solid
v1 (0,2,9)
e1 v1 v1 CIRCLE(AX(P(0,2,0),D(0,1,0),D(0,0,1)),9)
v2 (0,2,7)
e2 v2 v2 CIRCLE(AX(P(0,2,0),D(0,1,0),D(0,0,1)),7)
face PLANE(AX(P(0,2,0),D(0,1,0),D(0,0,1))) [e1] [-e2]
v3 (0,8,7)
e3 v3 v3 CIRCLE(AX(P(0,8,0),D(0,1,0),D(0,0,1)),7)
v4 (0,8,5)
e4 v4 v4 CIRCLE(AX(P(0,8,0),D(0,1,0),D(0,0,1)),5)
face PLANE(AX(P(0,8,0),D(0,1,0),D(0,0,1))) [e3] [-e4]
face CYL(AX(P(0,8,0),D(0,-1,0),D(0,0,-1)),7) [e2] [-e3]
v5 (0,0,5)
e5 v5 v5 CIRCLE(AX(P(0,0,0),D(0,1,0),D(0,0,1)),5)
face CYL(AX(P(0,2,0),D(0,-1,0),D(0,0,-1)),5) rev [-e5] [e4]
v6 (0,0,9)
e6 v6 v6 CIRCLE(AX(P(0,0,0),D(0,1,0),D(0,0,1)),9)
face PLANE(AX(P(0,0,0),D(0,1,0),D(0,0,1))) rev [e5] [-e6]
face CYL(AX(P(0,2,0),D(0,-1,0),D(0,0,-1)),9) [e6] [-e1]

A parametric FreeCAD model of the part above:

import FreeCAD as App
import Part
import Sketcher
from FreeCAD import Vector

doc = App.newDocument("Part")
body = doc.addObject("PartDesign::Body", "Body")

# Sketch on XZ plane
sketch1 = doc.addObject("Sketcher::SketchObject", "Sketch")
body.addObject(sketch1)
sketch1.AttachmentSupport = (doc.XZ_Plane, [""])
sketch1.MapMode = "FlatFace"
sketch1.addGeometry(Part.Circle(Vector(0, 0, 0), Vector(0, 0, 1), 9), False)
sketch1.addGeometry(Part.Circle(Vector(0, 0, 0), Vector(0, 0, 1), 5), False)
sketch1.addConstraint(Sketcher.Constraint("Coincident", 0, 3, -1, 1))
sketch1.addConstraint(Sketcher.Constraint("Coincident", 1, 3, -1, 1))
sketch1.addConstraint(Sketcher.Constraint("Diameter", 0, 18.0))
sketch1.addConstraint(Sketcher.Constraint("Diameter", 1, 10.0))
pad1 = doc.addObject("PartDesign::Pad", "Pad")
body.addObject(pad1)
pad1.Profile = sketch1
pad1.Length = 2
pad1.Reversed = True

# Sketch on XZ plane
sketch2 = doc.addObject("Sketcher::SketchObject", "Sketch001")
body.addObject(sketch2)
sketch2.AttachmentSupport = (doc.XZ_Plane, [""])
sketch2.MapMode = "FlatFace"
sketch2.AttachmentOffset = App.Placement(Vector(0, 0, -2), App.Rotation())
sketch2.addGeometry(Part.Circle(Vector(0, 0, 0), Vector(0, 0, 1), 7), False)
sketch2.addGeometry(Part.Circle(Vector(0, 0, 0), Vector(0, 0, 1), 5), False)
sketch2.addConstraint(Sketcher.Constraint("Coincident", 0, 3, -1, 1))
sketch2.addConstraint(Sketcher.Constraint("Coincident", 1, 3, -1, 1))
sketch2.addConstraint(Sketcher.Constraint("Diameter", 0, 14.0))
sketch2.addConstraint(Sketcher.Constraint("Diameter", 1, 10.0))
pad2 = doc.addObject("PartDesign::Pad", "Pad001")
body.addObject(pad2)
pad2.Profile = sketch2
pad2.Length = 6
pad2.Reversed = True

doc.recompute()
